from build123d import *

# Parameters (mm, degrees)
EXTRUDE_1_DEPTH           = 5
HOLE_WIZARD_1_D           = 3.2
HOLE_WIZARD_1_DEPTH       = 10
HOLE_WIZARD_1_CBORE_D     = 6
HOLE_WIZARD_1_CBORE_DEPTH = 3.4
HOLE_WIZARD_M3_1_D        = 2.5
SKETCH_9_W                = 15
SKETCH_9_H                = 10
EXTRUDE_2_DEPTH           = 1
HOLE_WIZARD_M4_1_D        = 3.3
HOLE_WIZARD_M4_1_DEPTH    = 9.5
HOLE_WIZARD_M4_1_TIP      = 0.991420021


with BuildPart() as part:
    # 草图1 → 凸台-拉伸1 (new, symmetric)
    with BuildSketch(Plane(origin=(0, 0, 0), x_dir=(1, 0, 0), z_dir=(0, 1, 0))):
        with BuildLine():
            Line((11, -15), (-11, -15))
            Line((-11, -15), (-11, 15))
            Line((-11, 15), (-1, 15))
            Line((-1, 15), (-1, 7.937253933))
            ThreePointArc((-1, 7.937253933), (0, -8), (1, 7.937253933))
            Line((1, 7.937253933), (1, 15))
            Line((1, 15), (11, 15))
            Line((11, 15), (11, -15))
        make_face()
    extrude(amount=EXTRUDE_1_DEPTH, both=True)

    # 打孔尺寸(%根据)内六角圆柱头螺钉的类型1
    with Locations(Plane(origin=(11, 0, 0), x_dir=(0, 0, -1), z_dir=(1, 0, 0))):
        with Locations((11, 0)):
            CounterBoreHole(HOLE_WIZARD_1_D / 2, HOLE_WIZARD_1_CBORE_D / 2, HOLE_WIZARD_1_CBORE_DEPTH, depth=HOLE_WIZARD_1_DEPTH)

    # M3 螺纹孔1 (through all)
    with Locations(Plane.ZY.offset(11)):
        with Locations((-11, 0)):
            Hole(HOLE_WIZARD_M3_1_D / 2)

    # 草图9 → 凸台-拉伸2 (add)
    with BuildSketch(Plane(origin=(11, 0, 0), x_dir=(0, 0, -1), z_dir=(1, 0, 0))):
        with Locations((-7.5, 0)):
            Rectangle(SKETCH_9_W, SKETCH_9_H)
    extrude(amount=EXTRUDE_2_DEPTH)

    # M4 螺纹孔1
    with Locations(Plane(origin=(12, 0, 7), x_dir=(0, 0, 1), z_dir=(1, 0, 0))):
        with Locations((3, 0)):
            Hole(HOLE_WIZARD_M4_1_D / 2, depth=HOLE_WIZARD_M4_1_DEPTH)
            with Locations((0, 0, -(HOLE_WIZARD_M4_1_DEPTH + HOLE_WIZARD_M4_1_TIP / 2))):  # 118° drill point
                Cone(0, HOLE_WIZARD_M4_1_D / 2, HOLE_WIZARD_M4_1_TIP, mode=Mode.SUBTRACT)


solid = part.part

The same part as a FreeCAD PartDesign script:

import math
import FreeCAD as App
import Part
import Sketcher
Q = App.Units.Quantity

doc = App.newDocument("Part")
body = doc.addObject("PartDesign::Body", "Body")

# Sketch on XZ plane
sketch1 = doc.addObject("Sketcher::SketchObject", "Sketch")
body.addObject(sketch1)
sketch1.AttachmentSupport = (doc.XZ_Plane, [""])
sketch1.MapMode = "FlatFace"
sketch1.addGeometry([
    Part.LineSegment(App.Vector(-11, 15, 0), App.Vector(11, 15, 0)),  # 0
    Part.LineSegment(App.Vector(11, 15, 0), App.Vector(11, -15, 0)),  # 1
    Part.LineSegment(App.Vector(11, -15, 0), App.Vector(1, -15, 0)),  # 2
    Part.LineSegment(App.Vector(1, -15, 0), App.Vector(1, -7.9, 0)),  # 3
    Part.ArcOfCircle(Part.Circle(App.Vector(0, 0, 0), App.Vector(0, 0, 1), 8), math.radians(-83), math.radians(263)),  # 4
    Part.LineSegment(App.Vector(-1, -7.9, 0), App.Vector(-1, -15, 0)),  # 5
    Part.LineSegment(App.Vector(-1, -15, 0), App.Vector(-11, -15, 0)),  # 6
    Part.LineSegment(App.Vector(-11, -15, 0), App.Vector(-11, 15, 0)),  # 7
], False)
sketch1.addConstraint([
    Sketcher.Constraint("Coincident", 0, 2, 1, 1),
    Sketcher.Constraint("Coincident", 1, 2, 2, 1),
    Sketcher.Constraint("Coincident", 2, 2, 3, 1),
    Sketcher.Constraint("Coincident", 3, 2, 4, 1),
    Sketcher.Constraint("Coincident", 4, 2, 5, 1),
    Sketcher.Constraint("Coincident", 5, 2, 6, 1),
    Sketcher.Constraint("Coincident", 6, 2, 7, 1),
    Sketcher.Constraint("Coincident", 7, 2, 0, 1),
    Sketcher.Constraint("Horizontal", 0),
    Sketcher.Constraint("Vertical", 1),
    Sketcher.Constraint("Horizontal", 2),
    Sketcher.Constraint("Vertical", 3),
    Sketcher.Constraint("Vertical", 5),
    Sketcher.Constraint("Horizontal", 6),
    Sketcher.Constraint("Vertical", 7),
    Sketcher.Constraint("Coincident", 4, 3, -1, 1),
    Sketcher.Constraint("Symmetric", 0, 2, 6, 2, -1, 1),
    Sketcher.Constraint("Symmetric", 2, 2, 5, 2, -2),
    Sketcher.Constraint("Radius", 4, Q("8 mm")),
    Sketcher.Constraint("DistanceX", 0, 1, 0, 2, Q("22 mm")),
    Sketcher.Constraint("DistanceX", 2, 2, 2, 1, Q("10 mm")),
    Sketcher.Constraint("DistanceY", 1, 2, 1, 1, Q("30 mm")),
])
pad1 = doc.addObject("PartDesign::Pad", "Pad")
body.addObject(pad1)
pad1.Profile = sketch1
pad1.Length = 10
pad1.Midplane = True

# Sketch on YZ plane
sketch2 = doc.addObject("Sketcher::SketchObject", "Sketch001")
body.addObject(sketch2)
sketch2.AttachmentSupport = (doc.YZ_Plane, [""])
sketch2.MapMode = "FlatFace"
sketch2.AttachmentOffset = App.Placement(App.Vector(0, 0, 11), App.Rotation())
sketch2.addGeometry(Part.Circle(App.Vector(0, -11, 0), App.Vector(0, 0, 1), 1.6), False)
sketch2.addConstraint([
    Sketcher.Constraint("PointOnObject", 0, 3, -2),
    Sketcher.Constraint("Diameter", 0, Q("3.2 mm")),
    Sketcher.Constraint("DistanceY", 0, 3, -1, 1, Q("11 mm")),
])
doc.recompute()
hole = doc.addObject("PartDesign::Hole", "Hole")
body.addObject(hole)
hole.Profile = sketch2
hole.ThreadType = "None"
hole.Diameter = 3.2
hole.DepthType = "Dimension"
hole.Depth = 10
hole.DrillPoint = "Flat"
hole.HoleCutType = "Counterbore"
hole.HoleCutDiameter = 6
hole.HoleCutDepth = 3.4

# Sketch on YZ plane
sketch3 = doc.addObject("Sketcher::SketchObject", "Sketch002")
body.addObject(sketch3)
sketch3.AttachmentSupport = (doc.YZ_Plane, [""])
sketch3.MapMode = "FlatFace"
sketch3.AttachmentOffset = App.Placement(App.Vector(0, 0, -11), App.Rotation())
sketch3.addGeometry(Part.Circle(App.Vector(0, -11, 0), App.Vector(0, 0, 1), 1.2), False)
sketch3.addConstraint([
    Sketcher.Constraint("PointOnObject", 0, 3, -2),
    Sketcher.Constraint("Diameter", 0, Q("2.5 mm")),
    Sketcher.Constraint("DistanceY", 0, 3, -1, 1, Q("11 mm")),
])
doc.recompute()
hole2 = doc.addObject("PartDesign::Hole", "Hole001")
body.addObject(hole2)
hole2.Profile = sketch3
hole2.ThreadType = "None"
hole2.Diameter = 2.5
hole2.DepthType = "ThroughAll"
hole2.Reversed = True

# Sketch on YZ plane
sketch4 = doc.addObject("Sketcher::SketchObject", "Sketch003")
body.addObject(sketch4)
sketch4.AttachmentSupport = (doc.YZ_Plane, [""])
sketch4.MapMode = "FlatFace"
sketch4.AttachmentOffset = App.Placement(App.Vector(0, 0, 11), App.Rotation())
sketch4.addGeometry([
    Part.LineSegment(App.Vector(5, 15, 0), App.Vector(-5, 15, 0)),
    Part.LineSegment(App.Vector(-5, 15, 0), App.Vector(-5, 0, 0)),
    Part.LineSegment(App.Vector(-5, 0, 0), App.Vector(5, 0, 0)),
    Part.LineSegment(App.Vector(5, 0, 0), App.Vector(5, 15, 0)),
], False)
sketch4.addConstraint([
    Sketcher.Constraint("Coincident", 0, 2, 1, 1),
    Sketcher.Constraint("Coincident", 1, 2, 2, 1),
    Sketcher.Constraint("Coincident", 2, 2, 3, 1),
    Sketcher.Constraint("Coincident", 3, 2, 0, 1),
    Sketcher.Constraint("Horizontal", 0),
    Sketcher.Constraint("Vertical", 1),
    Sketcher.Constraint("Horizontal", 2),
    Sketcher.Constraint("Vertical", 3),
    Sketcher.Constraint("Symmetric", 1, 2, 2, 2, -1, 1),
    Sketcher.Constraint("DistanceX", 0, 2, 0, 1, Q("10 mm")),
    Sketcher.Constraint("DistanceY", 1, 2, 1, 1, Q("15 mm")),
])
pad2 = doc.addObject("PartDesign::Pad", "Pad001")
body.addObject(pad2)
pad2.Profile = sketch4
pad2.Length = 1

# Sketch on YZ plane
sketch5 = doc.addObject("Sketcher::SketchObject", "Sketch004")
body.addObject(sketch5)
sketch5.AttachmentSupport = (doc.YZ_Plane, [""])
sketch5.MapMode = "FlatFace"
sketch5.AttachmentOffset = App.Placement(App.Vector(0, 0, 12), App.Rotation())
sketch5.addGeometry(Part.Circle(App.Vector(0, 10, 0), App.Vector(0, 0, 1), 1.6), False)
sketch5.addConstraint([
    Sketcher.Constraint("PointOnObject", 0, 3, -2),
    Sketcher.Constraint("Diameter", 0, Q("3.3 mm")),
    Sketcher.Constraint("DistanceY", -1, 1, 0, 3, Q("10 mm")),
])
doc.recompute()
hole3 = doc.addObject("PartDesign::Hole", "Hole002")
body.addObject(hole3)
hole3.Profile = sketch5
hole3.ThreadType = "None"
hole3.Diameter = 3.3
hole3.DepthType = "Dimension"
hole3.Depth = 9.5
hole3.DrillPoint = "Angled"
hole3.DrillPointAngle = 118

doc.recompute()
